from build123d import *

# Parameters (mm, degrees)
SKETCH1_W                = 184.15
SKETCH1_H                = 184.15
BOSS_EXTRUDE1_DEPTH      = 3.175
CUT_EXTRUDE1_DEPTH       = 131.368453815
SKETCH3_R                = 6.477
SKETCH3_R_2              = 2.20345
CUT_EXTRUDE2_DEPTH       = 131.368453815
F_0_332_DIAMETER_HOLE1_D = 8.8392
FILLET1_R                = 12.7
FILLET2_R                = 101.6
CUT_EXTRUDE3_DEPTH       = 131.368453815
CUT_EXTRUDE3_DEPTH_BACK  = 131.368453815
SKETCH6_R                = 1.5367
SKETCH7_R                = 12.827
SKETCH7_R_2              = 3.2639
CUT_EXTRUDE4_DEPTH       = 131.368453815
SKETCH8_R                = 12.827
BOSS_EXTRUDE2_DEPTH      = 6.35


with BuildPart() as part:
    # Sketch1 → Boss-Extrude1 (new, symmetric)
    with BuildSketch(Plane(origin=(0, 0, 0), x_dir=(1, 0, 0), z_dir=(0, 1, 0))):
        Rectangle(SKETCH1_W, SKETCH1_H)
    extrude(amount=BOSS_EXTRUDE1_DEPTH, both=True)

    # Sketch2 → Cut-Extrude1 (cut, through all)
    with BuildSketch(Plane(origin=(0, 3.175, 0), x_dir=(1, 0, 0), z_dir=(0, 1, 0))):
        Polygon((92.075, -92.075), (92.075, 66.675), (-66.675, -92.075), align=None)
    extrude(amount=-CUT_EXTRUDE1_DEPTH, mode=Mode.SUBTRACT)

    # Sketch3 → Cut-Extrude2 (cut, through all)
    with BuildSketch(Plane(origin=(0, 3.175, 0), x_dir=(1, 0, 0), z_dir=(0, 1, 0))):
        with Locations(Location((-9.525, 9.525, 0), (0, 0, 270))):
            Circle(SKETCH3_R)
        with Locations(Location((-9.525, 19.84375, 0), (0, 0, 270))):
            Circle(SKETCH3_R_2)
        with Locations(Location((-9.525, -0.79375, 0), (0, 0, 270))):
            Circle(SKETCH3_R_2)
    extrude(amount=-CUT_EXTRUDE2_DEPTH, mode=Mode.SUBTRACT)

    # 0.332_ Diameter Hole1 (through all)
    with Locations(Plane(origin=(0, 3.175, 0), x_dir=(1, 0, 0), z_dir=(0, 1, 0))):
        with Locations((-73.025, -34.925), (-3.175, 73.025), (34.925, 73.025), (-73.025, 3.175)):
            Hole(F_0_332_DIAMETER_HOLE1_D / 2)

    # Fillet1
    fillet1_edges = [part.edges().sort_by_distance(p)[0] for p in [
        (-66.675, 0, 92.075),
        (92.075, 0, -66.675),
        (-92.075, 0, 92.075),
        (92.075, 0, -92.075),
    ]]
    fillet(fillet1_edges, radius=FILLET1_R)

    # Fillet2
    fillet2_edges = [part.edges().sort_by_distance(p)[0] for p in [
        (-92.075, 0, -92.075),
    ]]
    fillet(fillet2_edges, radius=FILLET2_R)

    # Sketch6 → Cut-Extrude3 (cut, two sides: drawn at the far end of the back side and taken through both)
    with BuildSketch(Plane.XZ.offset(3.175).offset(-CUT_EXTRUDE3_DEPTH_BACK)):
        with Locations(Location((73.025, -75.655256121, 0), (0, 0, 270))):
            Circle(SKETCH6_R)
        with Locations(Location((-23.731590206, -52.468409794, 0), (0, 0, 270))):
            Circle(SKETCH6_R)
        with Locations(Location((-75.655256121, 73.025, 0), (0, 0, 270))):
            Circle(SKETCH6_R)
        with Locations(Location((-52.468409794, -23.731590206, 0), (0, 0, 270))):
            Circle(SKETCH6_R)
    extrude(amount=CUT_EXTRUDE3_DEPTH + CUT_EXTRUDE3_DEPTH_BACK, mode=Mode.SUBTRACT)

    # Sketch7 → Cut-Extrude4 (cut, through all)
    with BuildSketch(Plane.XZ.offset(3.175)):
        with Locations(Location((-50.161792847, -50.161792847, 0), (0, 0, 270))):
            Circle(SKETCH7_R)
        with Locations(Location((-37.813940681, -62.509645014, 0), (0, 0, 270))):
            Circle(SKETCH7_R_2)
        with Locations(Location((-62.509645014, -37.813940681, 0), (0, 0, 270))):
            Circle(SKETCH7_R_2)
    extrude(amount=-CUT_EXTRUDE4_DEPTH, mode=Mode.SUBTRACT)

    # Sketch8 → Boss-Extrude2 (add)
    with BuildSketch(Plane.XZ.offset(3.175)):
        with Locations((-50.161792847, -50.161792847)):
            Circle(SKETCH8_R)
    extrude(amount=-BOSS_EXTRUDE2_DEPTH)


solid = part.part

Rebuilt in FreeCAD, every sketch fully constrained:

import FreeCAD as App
import Part
import Sketcher
Q = App.Units.Quantity


def edges_at(feature, points):
    """Names of the edges that pass closest to the given points."""
    edges = feature.Shape.Edges
    near = lambda p: min(range(len(edges)), key=lambda i: edges[i].distToShape(Part.Vertex(*p))[0])
    return sorted({f"Edge{near(p) + 1}" for p in points})

doc = App.newDocument("Part")
params = doc.addObject("Spreadsheet::Sheet", "Params")
for row, (alias, value) in enumerate([
    ("sketch1_width", "7.25 in"),
    ("pad1_length", "0.25 in"),
    ("sketch2_width", "6.25 in"),
    ("sketch3_diameter", "0.51 in"),
    ("sketch4_diameter", "0.348 in"),
    ("hole_diameter", "0.348 in"),
    ("fillet_radius", "0.5 in"),
    ("fillet2_radius", "4 in"),
    ("sketch5_diameter", "0.121 in"),
    ("sketch6_diameter", "1.01 in"),
    ("sketch6_diameter2", "0.257 in"),
    ("sketch7_diameter", "1.01 in"),
    ("pad2_length", "0.25 in"),
], start=1):
    params.set(f"A{row}", alias)
    params.set(f"B{row}", "=" + value)
    params.setAlias(f"B{row}", alias)

body = doc.addObject("PartDesign::Body", "Body")

# Sketch on XZ plane
sketch1 = body.newObject("Sketcher::SketchObject", "Sketch")
sketch1.AttachmentSupport = (doc.getObject("XZ_Plane"), [""])
sketch1.MapMode = "FlatFace"
sketch1.addGeometry(Part.LineSegment(App.Vector(-92, -92, 0), App.Vector(-92, 92, 0)), False)
sketch1.addGeometry(Part.LineSegment(App.Vector(-92, 92, 0), App.Vector(92, 92, 0)), False)
sketch1.addGeometry(Part.LineSegment(App.Vector(92, 92, 0), App.Vector(92, -92, 0)), False)
sketch1.addGeometry(Part.LineSegment(App.Vector(92, -92, 0), App.Vector(-92, -92, 0)), False)
sketch1.addConstraint(Sketcher.Constraint("Coincident", 0, 2, 1, 1))
sketch1.addConstraint(Sketcher.Constraint("Coincident", 1, 2, 2, 1))
sketch1.addConstraint(Sketcher.Constraint("Coincident", 2, 2, 3, 1))
sketch1.addConstraint(Sketcher.Constraint("Coincident", 3, 2, 0, 1))
sketch1.addConstraint(Sketcher.Constraint("Vertical", 0))
sketch1.addConstraint(Sketcher.Constraint("Horizontal", 1))
sketch1.addConstraint(Sketcher.Constraint("Vertical", 2))
sketch1.addConstraint(Sketcher.Constraint("Horizontal", 3))
sketch1.addConstraint(Sketcher.Constraint("Symmetric", 0, 2, 2, 2, -1, 1))
sketch1.addConstraint(Sketcher.Constraint("Equal", 3, 0))
sketch1.addConstraint(Sketcher.Constraint("DistanceX", 1, 1, 1, 2, Q("7.25 in")))
sketch1.setExpression("Constraints[10]", "Params.sketch1_width")
pad1 = body.newObject("PartDesign::Pad", "Pad")
pad1.Profile = sketch1
pad1.setExpression("Length", "Params.pad1_length")
pad1.Midplane = True

# Sketch on XZ plane
sketch2 = body.newObject("Sketcher::SketchObject", "Sketch001")
sketch2.AttachmentSupport = (doc.getObject("XZ_Plane"), [""])
sketch2.MapMode = "FlatFace"
sketch2.AttachmentOffset = App.Placement(App.Vector(0, 0, -0.125 * 25.4), App.Rotation())
sketch2.addGeometry(Part.LineSegment(App.Vector(92, 92, 0), App.Vector(92, -67, 0)), False)
sketch2.addGeometry(Part.LineSegment(App.Vector(92, -67, 0), App.Vector(-67, 92, 0)), False)
sketch2.addGeometry(Part.LineSegment(App.Vector(-67, 92, 0), App.Vector(92, 92, 0)), False)
sketch2.addConstraint(Sketcher.Constraint("Coincident", 0, 2, 1, 1))
sketch2.addConstraint(Sketcher.Constraint("Coincident", 1, 2, 2, 1))
sketch2.addConstraint(Sketcher.Constraint("Coincident", 2, 2, 0, 1))
sketch2.addConstraint(Sketcher.Constraint("Vertical", 0))
sketch2.addConstraint(Sketcher.Constraint("Horizontal", 2))
sketch2.addConstraint(Sketcher.Constraint("Equal", 2, 0))
sketch2.addConstraint(Sketcher.Constraint("DistanceX", 2, 1, 2, 2, Q("6.25 in")))
sketch2.addConstraint(Sketcher.Constraint("DistanceX", -1, 1, 0, 2, Q("3.625 in")))
sketch2.addConstraint(Sketcher.Constraint("DistanceY", 0, 2, -1, 1, Q("2.625 in")))
sketch2.setExpression("Constraints[6]", "Params.sketch2_width")
pocket1 = body.newObject("PartDesign::Pocket", "Pocket")
pocket1.Profile = sketch2
pocket1.Type = "ThroughAll"
pocket1.Reversed = True

# Sketch on XZ plane
sketch3 = body.newObject("Sketcher::SketchObject", "Sketch002")
sketch3.AttachmentSupport = (doc.getObject("XZ_Plane"), [""])
sketch3.MapMode = "FlatFace"
sketch3.AttachmentOffset = App.Placement(App.Vector(0, 0, -0.125 * 25.4), App.Rotation())
sketch3.addGeometry(Part.Circle(App.Vector(-9.5, -9.5, 0), App.Vector(0, 0, 1), 6.5), False)
sketch3.addGeometry(Part.Circle(App.Vector(-9.5, -19.8, 0), App.Vector(0, 0, 1), 2.2), False)
sketch3.addGeometry(Part.Circle(App.Vector(-9.5, 0.8, 0), App.Vector(0, 0, 1), 2.2), False)
sketch3.addConstraint(Sketcher.Constraint("Equal", 1, 2))
sketch3.addConstraint(Sketcher.Constraint("Vertical", 0, 3, 1, 3))
sketch3.addConstraint(Sketcher.Constraint("Vertical", 1, 3, 2, 3))
sketch3.addConstraint(Sketcher.Constraint("Diameter", 0, Q("0.51 in")))
sketch3.addConstraint(Sketcher.Constraint("Diameter", 1, Q("0.1735 in")))
sketch3.addConstraint(Sketcher.Constraint("DistanceX", 0, 3, -1, 1, Q("0.375 in")))
sketch3.addConstraint(Sketcher.Constraint("DistanceY", 0, 3, -1, 1, Q("0.375 in")))
sketch3.addConstraint(Sketcher.Constraint("DistanceY", 1, 3, -1, 1, Q("0.78125 in")))
sketch3.addConstraint(Sketcher.Constraint("DistanceY", -1, 1, 2, 3, Q("0.03125 in")))
sketch3.setExpression("Constraints[3]", "Params.sketch3_diameter")
pocket2 = body.newObject("PartDesign::Pocket", "Pocket001")
pocket2.Profile = sketch3
pocket2.Type = "ThroughAll"
pocket2.Reversed = True

# Sketch on XZ plane
sketch4 = body.newObject("Sketcher::SketchObject", "Sketch003")
sketch4.AttachmentSupport = (doc.getObject("XZ_Plane"), [""])
sketch4.MapMode = "FlatFace"
sketch4.AttachmentOffset = App.Placement(App.Vector(0, 0, -0.125 * 25.4), App.Rotation())
sketch4.addGeometry(Part.Circle(App.Vector(-73, 34.9, 0), App.Vector(0, 0, 1), 4.4), False)
sketch4.addGeometry(Part.Circle(App.Vector(-3.2, -73, 0), App.Vector(0, 0, 1), 4.4), False)
sketch4.addGeometry(Part.Circle(App.Vector(34.9, -73, 0), App.Vector(0, 0, 1), 4.4), False)
sketch4.addGeometry(Part.Circle(App.Vector(-73, -3.2, 0), App.Vector(0, 0, 1), 4.4), False)
sketch4.addConstraint(Sketcher.Constraint("Equal", 0, 1))
sketch4.addConstraint(Sketcher.Constraint("Equal", 1, 2))
sketch4.addConstraint(Sketcher.Constraint("Equal", 2, 3))
sketch4.addConstraint(Sketcher.Constraint("Horizontal", 1, 3, 2, 3))
sketch4.addConstraint(Sketcher.Constraint("Vertical", 0, 3, 3, 3))
sketch4.addConstraint(Sketcher.Constraint("Diameter", 0, Q("0.348 in")))
sketch4.addConstraint(Sketcher.Constraint("DistanceX", 1, 3, 2, 3, Q("1.5 in")))
sketch4.addConstraint(Sketcher.Constraint("DistanceY", 3, 3, 0, 3, Q("1.5 in")))
sketch4.addConstraint(Sketcher.Constraint("DistanceX", 0, 3, 1, 3, Q("2.75 in")))
sketch4.addConstraint(Sketcher.Constraint("DistanceY", 1, 3, 0, 3, Q("4.25 in")))
sketch4.addConstraint(Sketcher.Constraint("DistanceX", 0, 3, -1, 1, Q("2.875 in")))
sketch4.addConstraint(Sketcher.Constraint("DistanceY", -1, 1, 0, 3, Q("1.375 in")))
sketch4.setExpression("Constraints[5]", "Params.sketch4_diameter")
doc.recompute()
hole = body.newObject("PartDesign::Hole", "Hole")
hole.Profile = sketch4
hole.ThreadType = "None"
hole.setExpression("Diameter", "Params.hole_diameter")
hole.DepthType = "ThroughAll"
hole.Reversed = True
doc.recompute()

fillet = body.newObject("PartDesign::Fillet", "Fillet")
fillet.Base = (hole, edges_at(hole, [
    (-66.675, 0, 92.075),
    (92.075, 0, -66.675),
    (-92.075, 0, 92.075),
    (92.075, 0, -92.075),
]))
fillet.setExpression("Radius", "Params.fillet_radius")
doc.recompute()

fillet2 = body.newObject("PartDesign::Fillet", "Fillet001")
fillet2.Base = (fillet, edges_at(fillet, [(-92.075, 0, -92.075)]))
fillet2.setExpression("Radius", "Params.fillet2_radius")

# Sketch on XZ plane
sketch5 = body.newObject("Sketcher::SketchObject", "Sketch004")
sketch5.AttachmentSupport = (doc.getObject("XZ_Plane"), [""])
sketch5.MapMode = "FlatFace"
sketch5.AttachmentOffset = App.Placement(App.Vector(0, 0, 0.125 * 25.4), App.Rotation())
sketch5.addGeometry(Part.Circle(App.Vector(73, -75.7, 0), App.Vector(0, 0, 1), 1.5), False)
sketch5.addGeometry(Part.Circle(App.Vector(-23.7, -52.5, 0), App.Vector(0, 0, 1), 1.5), False)
sketch5.addGeometry(Part.Circle(App.Vector(-75.7, 73, 0), App.Vector(0, 0, 1), 1.5), False)
sketch5.addGeometry(Part.Circle(App.Vector(-52.5, -23.7, 0), App.Vector(0, 0, 1), 1.5), False)
sketch5.addConstraint(Sketcher.Constraint("Equal", 0, 1))
sketch5.addConstraint(Sketcher.Constraint("Equal", 1, 2))
sketch5.addConstraint(Sketcher.Constraint("Equal", 2, 3))
sketch5.addConstraint(Sketcher.Constraint("Diameter", 0, Q("0.121 in")))
sketch5.addConstraint(Sketcher.Constraint("DistanceX", -1, 1, 0, 3, Q("2.875 in")))
sketch5.addConstraint(Sketcher.Constraint("DistanceY", -1, 1, 2, 3, Q("2.875 in")))
sketch5.addConstraint(Sketcher.Constraint("DistanceX", 1, 3, -1, 1, Q("23.73159 mm")))
sketch5.addConstraint(Sketcher.Constraint("DistanceY", 1, 3, -1, 1, Q("52.46841 mm")))
sketch5.addConstraint(Sketcher.Constraint("DistanceX", 3, 3, -1, 1, Q("52.46841 mm")))
sketch5.addConstraint(Sketcher.Constraint("DistanceY", 3, 3, -1, 1, Q("23.73159 mm")))
sketch5.addConstraint(Sketcher.Constraint("DistanceY", 0, 3, -1, 1, Q("75.655256 mm")))
sketch5.addConstraint(Sketcher.Constraint("DistanceX", 2, 3, -1, 1, Q("75.655256 mm")))
sketch5.setExpression("Constraints[3]", "Params.sketch5_diameter")
pocket3 = body.newObject("PartDesign::Pocket", "Pocket002")
pocket3.Profile = sketch5
pocket3.Type = "ThroughAll"
pocket3.Midplane = True

# Sketch on XZ plane
sketch6 = body.newObject("Sketcher::SketchObject", "Sketch005")
sketch6.AttachmentSupport = (doc.getObject("XZ_Plane"), [""])
sketch6.MapMode = "FlatFace"
sketch6.AttachmentOffset = App.Placement(App.Vector(0, 0, 0.125 * 25.4), App.Rotation())
sketch6.addGeometry(Part.Circle(App.Vector(-50.2, -50.2, 0), App.Vector(0, 0, 1), 12.8), False)
sketch6.addGeometry(Part.Circle(App.Vector(-37.8, -62.5, 0), App.Vector(0, 0, 1), 3.3), False)
sketch6.addGeometry(Part.Circle(App.Vector(-62.5, -37.8, 0), App.Vector(0, 0, 1), 3.3), False)
sketch6.addConstraint(Sketcher.Constraint("Equal", 1, 2))
sketch6.addConstraint(Sketcher.Constraint("Diameter", 0, Q("1.01 in")))
sketch6.addConstraint(Sketcher.Constraint("Diameter", 1, Q("0.257 in")))
sketch6.addConstraint(Sketcher.Constraint("DistanceX", 1, 3, -1, 1, Q("37.813941 mm")))
sketch6.addConstraint(Sketcher.Constraint("DistanceY", 2, 3, -1, 1, Q("37.813941 mm")))
sketch6.addConstraint(Sketcher.Constraint("DistanceX", 0, 3, -1, 1, Q("50.161793 mm")))
sketch6.addConstraint(Sketcher.Constraint("DistanceY", 0, 3, -1, 1, Q("50.161793 mm")))
sketch6.addConstraint(Sketcher.Constraint("DistanceY", 1, 3, -1, 1, Q("62.509645 mm")))
sketch6.addConstraint(Sketcher.Constraint("DistanceX", 2, 3, -1, 1, Q("62.509645 mm")))
sketch6.setExpression("Constraints[1]", "Params.sketch6_diameter")
sketch6.setExpression("Constraints[2]", "Params.sketch6_diameter2")
pocket4 = body.newObject("PartDesign::Pocket", "Pocket003")
pocket4.Profile = sketch6
pocket4.Type = "ThroughAll"

# Sketch on XZ plane
sketch7 = body.newObject("Sketcher::SketchObject", "Sketch006")
sketch7.AttachmentSupport = (doc.getObject("XZ_Plane"), [""])
sketch7.MapMode = "FlatFace"
sketch7.AttachmentOffset = App.Placement(App.Vector(0, 0, 0.125 * 25.4), App.Rotation())
sketch7.addGeometry(Part.Circle(App.Vector(-50, -50, 0), App.Vector(0, 0, 1), 13), False)
sketch7.addConstraint(Sketcher.Constraint("Diameter", 0, Q("1.01 in")))
sketch7.addConstraint(Sketcher.Constraint("DistanceX", 0, 3, -1, 1, Q("50.161793 mm")))
sketch7.addConstraint(Sketcher.Constraint("DistanceY", 0, 3, -1, 1, Q("50.161793 mm")))
sketch7.setExpression("Constraints[0]", "Params.sketch7_diameter")
pad2 = body.newObject("PartDesign::Pad", "Pad001")
pad2.Profile = sketch7
pad2.setExpression("Length", "Params.pad2_length")
pad2.Reversed = True

doc.recompute()
